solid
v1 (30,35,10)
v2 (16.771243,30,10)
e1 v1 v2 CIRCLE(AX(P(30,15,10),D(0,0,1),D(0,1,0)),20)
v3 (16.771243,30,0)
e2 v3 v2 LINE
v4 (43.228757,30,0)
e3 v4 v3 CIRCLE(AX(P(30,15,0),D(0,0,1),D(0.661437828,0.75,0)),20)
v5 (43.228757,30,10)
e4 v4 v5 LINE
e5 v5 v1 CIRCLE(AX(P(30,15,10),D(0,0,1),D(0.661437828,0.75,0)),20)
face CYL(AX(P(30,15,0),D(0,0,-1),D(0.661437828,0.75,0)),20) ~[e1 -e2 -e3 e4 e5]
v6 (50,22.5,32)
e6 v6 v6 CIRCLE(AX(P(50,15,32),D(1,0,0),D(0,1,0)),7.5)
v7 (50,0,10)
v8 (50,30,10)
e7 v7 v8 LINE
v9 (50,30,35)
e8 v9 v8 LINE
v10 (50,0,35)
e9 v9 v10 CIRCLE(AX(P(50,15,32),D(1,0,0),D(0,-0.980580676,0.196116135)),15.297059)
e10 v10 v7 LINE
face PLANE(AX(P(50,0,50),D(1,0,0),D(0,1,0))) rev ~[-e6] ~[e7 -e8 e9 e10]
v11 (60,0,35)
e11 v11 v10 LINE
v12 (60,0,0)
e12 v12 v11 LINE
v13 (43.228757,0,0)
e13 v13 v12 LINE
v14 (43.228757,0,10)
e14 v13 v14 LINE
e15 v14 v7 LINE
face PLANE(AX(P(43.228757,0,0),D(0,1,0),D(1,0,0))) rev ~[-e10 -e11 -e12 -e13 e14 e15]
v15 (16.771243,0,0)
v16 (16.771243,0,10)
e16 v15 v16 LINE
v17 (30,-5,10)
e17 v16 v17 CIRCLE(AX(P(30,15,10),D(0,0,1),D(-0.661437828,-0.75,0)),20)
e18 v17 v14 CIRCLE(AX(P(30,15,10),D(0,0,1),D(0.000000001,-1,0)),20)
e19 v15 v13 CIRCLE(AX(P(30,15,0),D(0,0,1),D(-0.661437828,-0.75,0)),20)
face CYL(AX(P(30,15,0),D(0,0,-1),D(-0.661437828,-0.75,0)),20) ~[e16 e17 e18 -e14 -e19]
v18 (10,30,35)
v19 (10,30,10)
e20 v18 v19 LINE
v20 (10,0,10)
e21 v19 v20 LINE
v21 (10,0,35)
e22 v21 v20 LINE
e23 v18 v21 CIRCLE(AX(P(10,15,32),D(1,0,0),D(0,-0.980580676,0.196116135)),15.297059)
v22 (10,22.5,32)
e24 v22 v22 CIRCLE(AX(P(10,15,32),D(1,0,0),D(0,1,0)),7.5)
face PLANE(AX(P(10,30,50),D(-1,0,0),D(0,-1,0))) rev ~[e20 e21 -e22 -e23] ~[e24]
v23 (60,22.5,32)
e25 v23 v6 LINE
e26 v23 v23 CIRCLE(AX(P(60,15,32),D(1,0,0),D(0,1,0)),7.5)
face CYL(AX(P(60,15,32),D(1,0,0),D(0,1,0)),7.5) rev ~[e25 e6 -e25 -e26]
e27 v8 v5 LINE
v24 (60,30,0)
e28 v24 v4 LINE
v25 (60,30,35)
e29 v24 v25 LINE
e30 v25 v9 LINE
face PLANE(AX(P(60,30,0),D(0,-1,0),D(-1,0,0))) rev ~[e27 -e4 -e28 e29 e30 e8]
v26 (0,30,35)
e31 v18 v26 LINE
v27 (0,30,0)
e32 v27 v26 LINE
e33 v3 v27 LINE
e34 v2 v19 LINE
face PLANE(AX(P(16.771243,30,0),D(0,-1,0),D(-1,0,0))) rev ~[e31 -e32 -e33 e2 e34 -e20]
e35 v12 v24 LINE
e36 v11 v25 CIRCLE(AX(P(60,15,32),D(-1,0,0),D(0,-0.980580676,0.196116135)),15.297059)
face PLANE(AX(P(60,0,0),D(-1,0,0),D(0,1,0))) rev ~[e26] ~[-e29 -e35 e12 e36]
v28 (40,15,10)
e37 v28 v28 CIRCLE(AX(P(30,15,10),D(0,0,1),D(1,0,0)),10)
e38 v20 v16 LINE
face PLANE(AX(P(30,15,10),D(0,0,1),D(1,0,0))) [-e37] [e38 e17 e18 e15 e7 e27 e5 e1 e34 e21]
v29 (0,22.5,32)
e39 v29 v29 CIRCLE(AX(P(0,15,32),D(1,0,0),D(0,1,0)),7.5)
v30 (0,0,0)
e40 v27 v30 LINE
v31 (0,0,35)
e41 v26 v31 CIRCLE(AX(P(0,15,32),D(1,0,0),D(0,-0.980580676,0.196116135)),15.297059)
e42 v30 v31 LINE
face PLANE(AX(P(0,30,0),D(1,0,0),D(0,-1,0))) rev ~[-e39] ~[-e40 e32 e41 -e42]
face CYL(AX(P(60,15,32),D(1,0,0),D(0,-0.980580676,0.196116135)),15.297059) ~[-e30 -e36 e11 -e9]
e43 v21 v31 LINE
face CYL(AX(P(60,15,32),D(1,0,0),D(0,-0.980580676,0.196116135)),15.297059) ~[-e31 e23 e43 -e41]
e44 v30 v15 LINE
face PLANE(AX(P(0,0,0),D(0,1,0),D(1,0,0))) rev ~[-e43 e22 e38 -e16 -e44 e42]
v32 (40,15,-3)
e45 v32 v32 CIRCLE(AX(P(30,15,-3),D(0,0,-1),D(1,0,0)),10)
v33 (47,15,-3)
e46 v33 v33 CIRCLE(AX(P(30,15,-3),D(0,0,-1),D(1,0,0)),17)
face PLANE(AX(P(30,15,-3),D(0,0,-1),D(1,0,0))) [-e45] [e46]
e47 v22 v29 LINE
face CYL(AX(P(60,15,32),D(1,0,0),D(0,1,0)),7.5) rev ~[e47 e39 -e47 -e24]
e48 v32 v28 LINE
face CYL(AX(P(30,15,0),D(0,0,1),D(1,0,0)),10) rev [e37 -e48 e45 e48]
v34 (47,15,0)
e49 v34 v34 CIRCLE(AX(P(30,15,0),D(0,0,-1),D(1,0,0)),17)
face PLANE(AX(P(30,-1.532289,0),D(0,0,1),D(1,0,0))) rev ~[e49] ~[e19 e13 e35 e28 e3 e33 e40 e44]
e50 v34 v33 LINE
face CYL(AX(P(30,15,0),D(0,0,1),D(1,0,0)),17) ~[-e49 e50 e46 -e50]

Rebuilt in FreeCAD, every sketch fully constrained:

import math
import FreeCAD as App
import Part
import Sketcher

V = App.Vector
Q = App.Units.Quantity

doc = App.newDocument("Part")
params = doc.addObject("Spreadsheet::Sheet", "Params")
for row, (alias, value) in enumerate([
    ("sketch1_diameter", "20 mm"),
    ("sketch1_radius", "20 mm"),
    ("sketch1_height", "30 mm"),
    ("pad1_length", "50 mm"),
    ("sketch2_diameter", "20 mm"),
    ("sketch2_radius", "20 mm"),
    ("sketch2_height", "30 mm"),
    ("pocket1_length", "40 mm"),
    ("sketch3_diameter", "15 mm"),
    ("sketch3_width", "30 mm"),
    ("sketch3_height", "15 mm"),
    ("sketch4_diameter", "34 mm"),
    ("sketch4_diameter2", "20 mm"),
    ("pad2_length", "3 mm"),
], start=1):
    params.set(f"A{row}", alias)
    params.set(f"B{row}", "=" + value)
    params.setAlias(f"B{row}", alias)

body = doc.addObject("PartDesign::Body", "Body")

sketch1 = body.newObject("Sketcher::SketchObject", "Sketch")
sketch1.AttachmentSupport = (doc.getObject("XY_Plane"), [""])
sketch1.MapMode = "FlatFace"
sketch1.addGeometry([
    Part.ArcOfCircle(Part.Circle(V(30, 15, 0), V(0, 0, 1), 20), math.radians(-131), math.radians(-49)),
    Part.LineSegment(V(43, 0, 0), V(60, 0, 0)),
    Part.LineSegment(V(60, 0, 0), V(60, 30, 0)),
    Part.LineSegment(V(60, 30, 0), V(43, 30, 0)),
    Part.ArcOfCircle(Part.Circle(V(30, 15, 0), V(0, 0, 1), 20), math.radians(49), math.radians(131)),
    Part.LineSegment(V(17, 30, 0), V(0, 30, 0)),
    Part.LineSegment(V(0, 30, 0), V(0, 0, 0)),
    Part.LineSegment(V(0, 0, 0), V(17, 0, 0)),
    Part.Circle(V(30, 15, 0), V(0, 0, 1), 10),
], False)
sketch1.addConstraint([
    Sketcher.Constraint("Coincident", 0, 2, 1, 1),
    Sketcher.Constraint("Coincident", 1, 2, 2, 1),
    Sketcher.Constraint("Coincident", 2, 2, 3, 1),
    Sketcher.Constraint("Coincident", 3, 2, 4, 1),
    Sketcher.Constraint("Coincident", 4, 2, 5, 1),
    Sketcher.Constraint("Coincident", 5, 2, 6, 1),
    Sketcher.Constraint("Coincident", 6, 2, 7, 1),
    Sketcher.Constraint("Coincident", 7, 2, 0, 1),
    Sketcher.Constraint("Horizontal", 1),
    Sketcher.Constraint("Vertical", 2),
    Sketcher.Constraint("Horizontal", 3),
    Sketcher.Constraint("Horizontal", 5),
    Sketcher.Constraint("Vertical", 6),
    Sketcher.Constraint("Horizontal", 7),
    Sketcher.Constraint("Coincident", 6, 2, -1, 1),
    Sketcher.Constraint("Coincident", 4, 3, 0, 3),
    Sketcher.Constraint("Coincident", 8, 3, 0, 3),
    Sketcher.Constraint("Equal", 0, 4),
    Sketcher.Constraint("PointOnObject", 0, 2, -1),
    Sketcher.Constraint("Horizontal", 3, 2, 4, 2),
    Sketcher.Constraint("Vertical", 0, 2, 3, 2),
    Sketcher.Constraint("Equal", 3, 5),
    Sketcher.Constraint("Diameter", 8, Q("20 mm")),
    Sketcher.Constraint("Radius", 0, Q("20 mm")),
    Sketcher.Constraint("DistanceY", 2, 1, 2, 2, Q("30 mm")),
    Sketcher.Constraint("DistanceX", -1, 1, 0, 3, Q("30 mm")),
])
sketch1.setExpression("Constraints[22]", "Params.sketch1_diameter")
sketch1.setExpression("Constraints[23]", "Params.sketch1_radius")
sketch1.setExpression("Constraints[24]", "Params.sketch1_height")
pad1 = body.newObject("PartDesign::Pad", "Pad")
pad1.Profile = sketch1
pad1.setExpression("Length", "Params.pad1_length")

sketch2 = body.newObject("Sketcher::SketchObject", "Sketch001")
sketch2.AttachmentSupport = (doc.getObject("XY_Plane"), [""])
sketch2.MapMode = "FlatFace"
sketch2.AttachmentOffset = App.Placement(V(0, 0, 50), App.Rotation())
sketch2.addGeometry([
    Part.ArcOfCircle(Part.Circle(V(30, 15, 0), V(0, 0, 1), 20), math.radians(49), math.radians(90)),
    Part.ArcOfCircle(Part.Circle(V(30, 15, 0), V(0, 0, 1), 20), math.radians(90), math.radians(131)),
    Part.LineSegment(V(17, 30, 0), V(10, 30, 0)),
    Part.LineSegment(V(10, 30, 0), V(10, 0, 0)),
    Part.LineSegment(V(10, 0, 0), V(17, 0, 0)),
    Part.ArcOfCircle(Part.Circle(V(30, 15, 0), V(0, 0, 1), 20), math.radians(-131), math.radians(-90)),
    Part.ArcOfCircle(Part.Circle(V(30, 15, 0), V(0, 0, 1), 20), math.radians(-90), math.radians(-49)),
    Part.LineSegment(V(43, 0, 0), V(50, 0, 0)),
    Part.LineSegment(V(50, 0, 0), V(50, 30, 0)),
    Part.LineSegment(V(50, 30, 0), V(43, 30, 0)),
    Part.Circle(V(30, 15, 0), V(0, 0, 1), 10),
], False)
sketch2.addConstraint([
    Sketcher.Constraint("Tangent", 0, 2, 1, 1),
    Sketcher.Constraint("Coincident", 1, 2, 2, 1),
    Sketcher.Constraint("Coincident", 2, 2, 3, 1),
    Sketcher.Constraint("Coincident", 3, 2, 4, 1),
    Sketcher.Constraint("Coincident", 4, 2, 5, 1),
    Sketcher.Constraint("Tangent", 5, 2, 6, 1),
    Sketcher.Constraint("Coincident", 6, 2, 7, 1),
    Sketcher.Constraint("Coincident", 7, 2, 8, 1),
    Sketcher.Constraint("Coincident", 8, 2, 9, 1),
    Sketcher.Constraint("Coincident", 9, 2, 0, 1),
    Sketcher.Constraint("Horizontal", 2),
    Sketcher.Constraint("Vertical", 3),
    Sketcher.Constraint("Horizontal", 4),
    Sketcher.Constraint("Horizontal", 7),
    Sketcher.Constraint("Vertical", 8),
    Sketcher.Constraint("Horizontal", 9),
    Sketcher.Constraint("Coincident", 5, 3, 0, 3),
    Sketcher.Constraint("Coincident", 10, 3, 0, 3),
    Sketcher.Constraint("Equal", 0, 1),
    Sketcher.Constraint("Equal", 1, 5),
    Sketcher.Constraint("Equal", 5, 6),
    Sketcher.Constraint("PointOnObject", 3, 2, -1),
    Sketcher.Constraint("PointOnObject", 6, 2, -1),
    Sketcher.Constraint("Horizontal", 2, 2, 8, 2),
    Sketcher.Constraint("Vertical", 10, 3, 0, 2),
    Sketcher.Constraint("Vertical", 1, 2, 4, 2),
    Sketcher.Constraint("Vertical", 0, 2, 5, 2),
    Sketcher.Constraint("Equal", 4, 7),
    Sketcher.Constraint("Diameter", 10, Q("20 mm")),
    Sketcher.Constraint("Radius", 0, Q("20 mm")),
    Sketcher.Constraint("DistanceY", 3, 2, 3, 1, Q("30 mm")),
    Sketcher.Constraint("DistanceX", -1, 1, 0, 3, Q("30 mm")),
    Sketcher.Constraint("DistanceX", -1, 1, 2, 2, Q("10 mm")),
])
sketch2.setExpression("Constraints[28]", "Params.sketch2_diameter")
sketch2.setExpression("Constraints[29]", "Params.sketch2_radius")
sketch2.setExpression("Constraints[30]", "Params.sketch2_height")
pocket1 = body.newObject("PartDesign::Pocket", "Pocket")
pocket1.Profile = sketch2
pocket1.setExpression("Length", "Params.pocket1_length")

sketch3 = body.newObject("Sketcher::SketchObject", "Sketch002")
sketch3.AttachmentSupport = (doc.getObject("YZ_Plane"), [""])
sketch3.MapMode = "FlatFace"
sketch3.AttachmentOffset = App.Placement(V(0, 0, 60), App.Rotation())
sketch3.addGeometry([
    Part.LineSegment(V(30, 50, 0), V(0, 50, 0)),
    Part.LineSegment(V(0, 50, 0), V(0, 35, 0)),
    Part.ArcOfCircle(Part.Circle(V(15, 32, 0), V(0, 0, 1), 15), math.radians(11), math.radians(169)),
    Part.LineSegment(V(30, 35, 0), V(30, 50, 0)),
    Part.Circle(V(15, 32, 0), V(0, 0, 1), 8),
], False)
sketch3.addConstraint([
    Sketcher.Constraint("Coincident", 0, 2, 1, 1),
    Sketcher.Constraint("Coincident", 1, 2, 2, 2),
    Sketcher.Constraint("Coincident", 2, 1, 3, 1),
    Sketcher.Constraint("Coincident", 3, 2, 0, 1),
    Sketcher.Constraint("Horizontal", 0),
    Sketcher.Constraint("Vertical", 1),
    Sketcher.Constraint("Vertical", 3),
    Sketcher.Constraint("Coincident", 4, 3, 2, 3),
    Sketcher.Constraint("PointOnObject", 0, 2, -2),
    Sketcher.Constraint("Horizontal", 1, 2, 2, 1),
    Sketcher.Constraint("Diameter", 4, Q("15 mm")),
    Sketcher.Constraint("DistanceX", 0, 2, 0, 1, Q("30 mm")),
    Sketcher.Constraint("DistanceY", 1, 2, 1, 1, Q("15 mm")),
    Sketcher.Constraint("DistanceY", -1, 1, 2, 3, Q("32 mm")),
    Sketcher.Constraint("DistanceY", -1, 1, 0, 2, Q("50 mm")),
])
sketch3.setExpression("Constraints[10]", "Params.sketch3_diameter")
sketch3.setExpression("Constraints[11]", "Params.sketch3_width")
sketch3.setExpression("Constraints[12]", "Params.sketch3_height")
pocket2 = body.newObject("PartDesign::Pocket", "Pocket001")
pocket2.Profile = sketch3
pocket2.Type = "ThroughAll"

sketch4 = body.newObject("Sketcher::SketchObject", "Sketch003")
sketch4.AttachmentSupport = (doc.getObject("XY_Plane"), [""])
sketch4.MapMode = "FlatFace"
sketch4.addGeometry([
    Part.Circle(V(30, 15, 0), V(0, 0, 1), 17),
    Part.Circle(V(30, 15, 0), V(0, 0, 1), 10),
], False)
sketch4.addConstraint([
    Sketcher.Constraint("Coincident", 1, 3, 0, 3),
    Sketcher.Constraint("Diameter", 0, Q("34 mm")),
    Sketcher.Constraint("Diameter", 1, Q("20 mm")),
    Sketcher.Constraint("DistanceX", -1, 1, 0, 3, Q("30 mm")),
    Sketcher.Constraint("DistanceY", -1, 1, 0, 3, Q("15 mm")),
])
sketch4.setExpression("Constraints[1]", "Params.sketch4_diameter")
sketch4.setExpression("Constraints[2]", "Params.sketch4_diameter2")
pad2 = body.newObject("PartDesign::Pad", "Pad001")
pad2.Profile = sketch4
pad2.setExpression("Length", "Params.pad2_length")
pad2.Reversed = True

doc.recompute()
